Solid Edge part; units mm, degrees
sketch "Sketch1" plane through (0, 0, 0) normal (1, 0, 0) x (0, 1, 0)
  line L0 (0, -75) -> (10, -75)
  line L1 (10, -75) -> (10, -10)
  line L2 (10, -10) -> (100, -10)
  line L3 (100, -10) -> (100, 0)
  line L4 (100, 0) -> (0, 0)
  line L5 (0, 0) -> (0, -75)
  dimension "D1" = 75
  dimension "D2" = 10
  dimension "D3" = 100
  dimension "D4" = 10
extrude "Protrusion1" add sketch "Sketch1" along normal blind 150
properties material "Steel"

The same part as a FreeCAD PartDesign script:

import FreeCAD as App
import Part
import Sketcher
from FreeCAD import Vector


def add_polygon(sketch, points):
    """Adds a closed chain of lines whose ends are joined by coincident constraints."""
    first, n = sketch.GeometryCount, len(points)
    for a, b in zip(points, points[1:] + points[:1]):
        sketch.addGeometry(Part.LineSegment(App.Vector(*a, 0), App.Vector(*b, 0)), False)
    for i in range(n):
        sketch.addConstraint(Sketcher.Constraint("Coincident", first + i, 2, first + (i + 1) % n, 1))

doc = App.newDocument("Part")
params = doc.addObject("Spreadsheet::Sheet", "Params")
for row, (alias, value) in enumerate([
    ("sketch1_width", "100 mm"),
    ("sketch1_width2", "10 mm"),
    ("sketch1_height", "75 mm"),
    ("pad1_length", "150 mm"),
], start=1):
    params.set(f"A{row}", alias)
    params.set(f"B{row}", "=" + value)
    params.setAlias(f"B{row}", alias)

body = doc.addObject("PartDesign::Body", "Body")

# Sketch on YZ plane
sketch1 = body.newObject("Sketcher::SketchObject", "Sketch")
sketch1.AttachmentSupport = (doc.getObject("YZ_Plane"), [""])
sketch1.MapMode = "FlatFace"
add_polygon(sketch1, [(0, 0), (0, -75), (10, -75), (10, -10), (100, -10), (100, 0)])  # lines 0-5
sketch1.addConstraint([
    Sketcher.Constraint("Vertical", 0),
    Sketcher.Constraint("Horizontal", 1),
    Sketcher.Constraint("Vertical", 2),
    Sketcher.Constraint("Horizontal", 3),
    Sketcher.Constraint("Vertical", 4),
    Sketcher.Constraint("Horizontal", 5),
    Sketcher.Constraint("Coincident", 5, 2, -1, 1),
    Sketcher.Constraint("Equal", 1, 4),
    Sketcher.Constraint("DistanceX", 5, 2, 5, 1, 100.0),
    Sketcher.Constraint("DistanceX", 1, 1, 1, 2, 10.0),
    Sketcher.Constraint("DistanceY", 0, 2, 0, 1, 75.0),
])
sketch1.setExpression("Constraints[14]", "Params.sketch1_width")
sketch1.setExpression("Constraints[15]", "Params.sketch1_width2")
sketch1.setExpression("Constraints[16]", "Params.sketch1_height")
pad1 = body.newObject("PartDesign::Pad", "Pad")
pad1.Profile = sketch1
pad1.setExpression("Length", "Params.pad1_length")

doc.recompute()
